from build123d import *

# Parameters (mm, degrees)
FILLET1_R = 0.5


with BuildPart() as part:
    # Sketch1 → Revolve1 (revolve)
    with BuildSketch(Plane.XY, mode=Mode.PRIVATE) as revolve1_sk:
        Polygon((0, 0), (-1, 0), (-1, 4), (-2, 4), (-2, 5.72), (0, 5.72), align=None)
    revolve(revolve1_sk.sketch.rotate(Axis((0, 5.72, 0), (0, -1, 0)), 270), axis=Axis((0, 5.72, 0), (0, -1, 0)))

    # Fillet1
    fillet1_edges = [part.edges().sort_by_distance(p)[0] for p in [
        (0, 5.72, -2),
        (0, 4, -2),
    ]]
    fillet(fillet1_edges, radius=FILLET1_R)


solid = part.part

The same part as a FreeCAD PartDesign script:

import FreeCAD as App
import Part
import Sketcher


def edges_at(feature, points):
    """Names of the edges that pass closest to the given points."""
    edges = feature.Shape.Edges
    near = lambda p: min(range(len(edges)), key=lambda i: edges[i].distToShape(Part.Vertex(*p))[0])
    return sorted({f"Edge{near(p) + 1}" for p in points})

doc = App.newDocument("Part")
body = doc.addObject("PartDesign::Body", "Body")

sketch1 = doc.addObject("Sketcher::SketchObject", "Sketch")
body.addObject(sketch1)
sketch1.AttachmentSupport = (doc.XY_Plane, [""])
sketch1.MapMode = "FlatFace"
sketch1.addGeometry(Part.LineSegment(App.Vector(-1, 0, 0), App.Vector(0, 0, 0)), False)
sketch1.addGeometry(Part.LineSegment(App.Vector(0, 0, 0), App.Vector(0, 5.7, 0)), False)
sketch1.addGeometry(Part.LineSegment(App.Vector(0, 5.7, 0), App.Vector(-2, 5.7, 0)), False)
sketch1.addGeometry(Part.LineSegment(App.Vector(-2, 5.7, 0), App.Vector(-2, 4, 0)), False)
sketch1.addGeometry(Part.LineSegment(App.Vector(-2, 4, 0), App.Vector(-1, 4, 0)), False)
sketch1.addGeometry(Part.LineSegment(App.Vector(-1, 4, 0), App.Vector(-1, 0, 0)), False)
sketch1.addConstraint(Sketcher.Constraint("Coincident", 0, 2, 1, 1))
sketch1.addConstraint(Sketcher.Constraint("Coincident", 1, 2, 2, 1))
sketch1.addConstraint(Sketcher.Constraint("Coincident", 2, 2, 3, 1))
sketch1.addConstraint(Sketcher.Constraint("Coincident", 3, 2, 4, 1))
sketch1.addConstraint(Sketcher.Constraint("Coincident", 4, 2, 5, 1))
sketch1.addConstraint(Sketcher.Constraint("Coincident", 5, 2, 0, 1))
sketch1.addConstraint(Sketcher.Constraint("Horizontal", 0))
sketch1.addConstraint(Sketcher.Constraint("Vertical", 1))
sketch1.addConstraint(Sketcher.Constraint("Horizontal", 2))
sketch1.addConstraint(Sketcher.Constraint("Vertical", 3))
sketch1.addConstraint(Sketcher.Constraint("Horizontal", 4))
sketch1.addConstraint(Sketcher.Constraint("Vertical", 5))
sketch1.addConstraint(Sketcher.Constraint("Coincident", 0, 2, -1, 1))
sketch1.addConstraint(Sketcher.Constraint("Equal", 0, 4))
sketch1.addConstraint(Sketcher.Constraint("DistanceX", 0, 1, 0, 2, 1.0))
sketch1.addConstraint(Sketcher.Constraint("DistanceY", 5, 2, 5, 1, 4.0))
sketch1.addConstraint(Sketcher.Constraint("DistanceY", 1, 1, 1, 2, 5.72))
revolution = doc.addObject("PartDesign::Revolution", "Revolution")
body.addObject(revolution)
revolution.Profile = sketch1
revolution.ReferenceAxis = (sketch1, ["V_Axis"])
revolution.Angle = 360
doc.recompute()

fillet = doc.addObject("PartDesign::Fillet", "Fillet")
body.addObject(fillet)
fillet.Base = (revolution, edges_at(revolution, [(0, 5.72, -2), (0, 4, -2)]))
fillet.Radius = 0.5

doc.recompute()
